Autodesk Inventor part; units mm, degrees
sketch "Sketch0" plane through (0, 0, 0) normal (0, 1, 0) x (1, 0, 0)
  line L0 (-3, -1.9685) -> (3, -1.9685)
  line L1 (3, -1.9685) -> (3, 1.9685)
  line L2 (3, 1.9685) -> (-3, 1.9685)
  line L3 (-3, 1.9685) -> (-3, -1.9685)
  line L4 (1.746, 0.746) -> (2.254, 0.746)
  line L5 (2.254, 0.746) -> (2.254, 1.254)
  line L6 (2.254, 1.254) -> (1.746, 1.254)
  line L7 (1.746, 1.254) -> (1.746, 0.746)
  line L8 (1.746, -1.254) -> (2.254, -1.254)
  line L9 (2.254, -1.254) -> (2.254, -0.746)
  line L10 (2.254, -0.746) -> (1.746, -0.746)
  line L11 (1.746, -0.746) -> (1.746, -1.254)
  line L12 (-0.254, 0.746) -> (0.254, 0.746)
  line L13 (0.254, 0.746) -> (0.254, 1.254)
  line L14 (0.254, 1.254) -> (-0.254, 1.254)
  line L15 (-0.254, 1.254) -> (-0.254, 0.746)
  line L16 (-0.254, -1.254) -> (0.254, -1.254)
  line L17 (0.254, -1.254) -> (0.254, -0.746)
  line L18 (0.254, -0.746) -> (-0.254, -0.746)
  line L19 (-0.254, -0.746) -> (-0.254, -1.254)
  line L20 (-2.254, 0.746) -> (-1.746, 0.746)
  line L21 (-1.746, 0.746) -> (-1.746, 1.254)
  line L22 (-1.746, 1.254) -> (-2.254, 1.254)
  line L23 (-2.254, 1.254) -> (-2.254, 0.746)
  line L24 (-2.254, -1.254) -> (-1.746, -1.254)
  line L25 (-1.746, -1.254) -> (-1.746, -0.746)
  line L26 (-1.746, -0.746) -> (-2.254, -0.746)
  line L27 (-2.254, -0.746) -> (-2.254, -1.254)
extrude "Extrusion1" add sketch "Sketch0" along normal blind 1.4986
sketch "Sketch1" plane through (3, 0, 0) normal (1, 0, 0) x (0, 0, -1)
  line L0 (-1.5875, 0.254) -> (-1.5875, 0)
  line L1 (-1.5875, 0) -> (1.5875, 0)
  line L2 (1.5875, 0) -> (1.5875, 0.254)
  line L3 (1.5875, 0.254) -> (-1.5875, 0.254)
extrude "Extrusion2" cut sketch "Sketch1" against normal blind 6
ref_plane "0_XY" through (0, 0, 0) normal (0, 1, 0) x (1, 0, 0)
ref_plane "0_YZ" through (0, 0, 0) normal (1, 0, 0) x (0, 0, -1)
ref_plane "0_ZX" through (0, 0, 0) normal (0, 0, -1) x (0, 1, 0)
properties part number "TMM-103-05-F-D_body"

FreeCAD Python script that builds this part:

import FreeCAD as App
import Part
import Sketcher
from FreeCAD import Vector
Q = App.Units.Quantity

doc = App.newDocument("Part")
body = doc.addObject("PartDesign::Body", "Body")

# Sketch on XZ plane
sketch1 = body.newObject("Sketcher::SketchObject", "Sketch")
sketch1.AttachmentSupport = (doc.getObject("XZ_Plane"), [""])
sketch1.MapMode = "FlatFace"
sketch1.addGeometry([
    Part.LineSegment(Vector(-3, -2, 0), Vector(-3, 2, 0)),  # 0
    Part.LineSegment(Vector(-3, 2, 0), Vector(3, 2, 0)),  # 1
    Part.LineSegment(Vector(3, 2, 0), Vector(3, -2, 0)),  # 2
    Part.LineSegment(Vector(3, -2, 0), Vector(-3, -2, 0)),  # 3
    Part.LineSegment(Vector(-1.7, 1.3, 0), Vector(-2.3, 1.3, 0)),  # 4
    Part.LineSegment(Vector(-2.3, 1.3, 0), Vector(-2.3, 0.7, 0)),  # 5
    Part.LineSegment(Vector(-2.3, 0.7, 0), Vector(-1.7, 0.7, 0)),  # 6
    Part.LineSegment(Vector(-1.7, 0.7, 0), Vector(-1.7, 1.3, 0)),  # 7
    Part.LineSegment(Vector(0.3, 1.3, 0), Vector(-0.3, 1.3, 0)),  # 8
    Part.LineSegment(Vector(-0.3, 1.3, 0), Vector(-0.3, 0.7, 0)),  # 9
    Part.LineSegment(Vector(-0.3, 0.7, 0), Vector(0.3, 0.7, 0)),  # 10
    Part.LineSegment(Vector(0.3, 0.7, 0), Vector(0.3, 1.3, 0)),  # 11
    Part.LineSegment(Vector(2.3, 1.3, 0), Vector(1.7, 1.3, 0)),  # 12
    Part.LineSegment(Vector(1.7, 1.3, 0), Vector(1.7, 0.7, 0)),  # 13
    Part.LineSegment(Vector(1.7, 0.7, 0), Vector(2.3, 0.7, 0)),  # 14
    Part.LineSegment(Vector(2.3, 0.7, 0), Vector(2.3, 1.3, 0)),  # 15
    Part.LineSegment(Vector(-1.7, -0.7, 0), Vector(-2.3, -0.7, 0)),  # 16
    Part.LineSegment(Vector(-2.3, -0.7, 0), Vector(-2.3, -1.3, 0)),  # 17
    Part.LineSegment(Vector(-2.3, -1.3, 0), Vector(-1.7, -1.3, 0)),  # 18
    Part.LineSegment(Vector(-1.7, -1.3, 0), Vector(-1.7, -0.7, 0)),  # 19
    Part.LineSegment(Vector(0.3, -0.7, 0), Vector(-0.3, -0.7, 0)),  # 20
    Part.LineSegment(Vector(-0.3, -0.7, 0), Vector(-0.3, -1.3, 0)),  # 21
    Part.LineSegment(Vector(-0.3, -1.3, 0), Vector(0.3, -1.3, 0)),  # 22
    Part.LineSegment(Vector(0.3, -1.3, 0), Vector(0.3, -0.7, 0)),  # 23
    Part.LineSegment(Vector(2.3, -0.7, 0), Vector(1.7, -0.7, 0)),  # 24
    Part.LineSegment(Vector(1.7, -0.7, 0), Vector(1.7, -1.3, 0)),  # 25
    Part.LineSegment(Vector(1.7, -1.3, 0), Vector(2.3, -1.3, 0)),  # 26
    Part.LineSegment(Vector(2.3, -1.3, 0), Vector(2.3, -0.7, 0)),  # 27
], False)
sketch1.addConstraint([
    Sketcher.Constraint("Coincident", 0, 2, 1, 1),
    Sketcher.Constraint("Coincident", 1, 2, 2, 1),
    Sketcher.Constraint("Coincident", 2, 2, 3, 1),
    Sketcher.Constraint("Coincident", 3, 2, 0, 1),
    Sketcher.Constraint("Coincident", 4, 2, 5, 1),
    Sketcher.Constraint("Coincident", 5, 2, 6, 1),
    Sketcher.Constraint("Coincident", 6, 2, 7, 1),
    Sketcher.Constraint("Coincident", 7, 2, 4, 1),
    Sketcher.Constraint("Coincident", 8, 2, 9, 1),
    Sketcher.Constraint("Coincident", 9, 2, 10, 1),
    Sketcher.Constraint("Coincident", 10, 2, 11, 1),
    Sketcher.Constraint("Coincident", 11, 2, 8, 1),
    Sketcher.Constraint("Coincident", 12, 2, 13, 1),
    Sketcher.Constraint("Coincident", 13, 2, 14, 1),
    Sketcher.Constraint("Coincident", 14, 2, 15, 1),
    Sketcher.Constraint("Coincident", 15, 2, 12, 1),
    Sketcher.Constraint("Coincident", 16, 2, 17, 1),
    Sketcher.Constraint("Coincident", 17, 2, 18, 1),
    Sketcher.Constraint("Coincident", 18, 2, 19, 1),
    Sketcher.Constraint("Coincident", 19, 2, 16, 1),
    Sketcher.Constraint("Coincident", 20, 2, 21, 1),
    Sketcher.Constraint("Coincident", 21, 2, 22, 1),
    Sketcher.Constraint("Coincident", 22, 2, 23, 1),
    Sketcher.Constraint("Coincident", 23, 2, 20, 1),
    Sketcher.Constraint("Coincident", 24, 2, 25, 1),
    Sketcher.Constraint("Coincident", 25, 2, 26, 1),
    Sketcher.Constraint("Coincident", 26, 2, 27, 1),
    Sketcher.Constraint("Coincident", 27, 2, 24, 1),
    Sketcher.Constraint("Vertical", 0),
    Sketcher.Constraint("Horizontal", 1),
    Sketcher.Constraint("Vertical", 2),
    Sketcher.Constraint("Horizontal", 3),
    Sketcher.Constraint("Horizontal", 4),
    Sketcher.Constraint("Vertical", 5),
    Sketcher.Constraint("Horizontal", 6),
    Sketcher.Constraint("Vertical", 7),
    Sketcher.Constraint("Horizontal", 8),
    Sketcher.Constraint("Vertical", 9),
    Sketcher.Constraint("Horizontal", 10),
    Sketcher.Constraint("Vertical", 11),
    Sketcher.Constraint("Horizontal", 12),
    Sketcher.Constraint("Vertical", 13),
    Sketcher.Constraint("Horizontal", 14),
    Sketcher.Constraint("Vertical", 15),
    Sketcher.Constraint("Horizontal", 16),
    Sketcher.Constraint("Vertical", 17),
    Sketcher.Constraint("Horizontal", 18),
    Sketcher.Constraint("Vertical", 19),
    Sketcher.Constraint("Horizontal", 20),
    Sketcher.Constraint("Vertical", 21),
    Sketcher.Constraint("Horizontal", 22),
    Sketcher.Constraint("Vertical", 23),
    Sketcher.Constraint("Horizontal", 24),
    Sketcher.Constraint("Vertical", 25),
    Sketcher.Constraint("Horizontal", 26),
    Sketcher.Constraint("Vertical", 27),
    Sketcher.Constraint("Symmetric", 0, 2, 2, 2, -1, 1),
    Sketcher.Constraint("Symmetric", 14, 2, 16, 2, -1, 1),
    Sketcher.Constraint("Symmetric", 12, 2, 18, 2, -1, 1),
    Sketcher.Constraint("Symmetric", 10, 2, 20, 2, -1, 1),
    Sketcher.Constraint("Symmetric", 8, 2, 22, 2, -1, 1),
    Sketcher.Constraint("Symmetric", 6, 2, 24, 2, -1, 1),
    Sketcher.Constraint("Symmetric", 4, 2, 26, 2, -1, 1),
    Sketcher.Constraint("Symmetric", 7, 2, 12, 2, -2),
    Sketcher.Constraint("Symmetric", 5, 2, 14, 2, -2),
    Sketcher.Constraint("Horizontal", 7, 2, 8, 2),
    Sketcher.Constraint("Horizontal", 6, 2, 9, 2),
    Sketcher.Constraint("Vertical", 9, 2, 20, 2),
    Sketcher.Constraint("Equal", 6, 8),
    Sketcher.Constraint("Equal", 26, 5),
    Sketcher.Constraint("DistanceX", 4, 2, 4, 1, Q("0.02 in")),
    Sketcher.Constraint("DistanceY", 0, 1, 0, 2, Q("0.155 in")),
    Sketcher.Constraint("DistanceX", 1, 1, 1, 2, Q("6 mm")),
    Sketcher.Constraint("DistanceX", 4, 2, -1, 1, Q("2.254 mm")),
    Sketcher.Constraint("DistanceY", -1, 1, 4, 2, Q("1.254 mm")),
])
pad1 = body.newObject("PartDesign::Pad", "Pad")
pad1.Profile = sketch1
pad1.Length = Q("0.059 in")
pad1.Reversed = True

# Sketch on YZ plane
sketch2 = body.newObject("Sketcher::SketchObject", "Sketch001")
sketch2.AttachmentSupport = (doc.getObject("YZ_Plane"), [""])
sketch2.MapMode = "FlatFace"
sketch2.AttachmentOffset = App.Placement(Vector(0, 0, 0.1181102 * 25.4), App.Rotation())
sketch2.addGeometry([
    Part.LineSegment(Vector(0.25, -1.59, 0), Vector(0.25, 1.59, 0)),
    Part.LineSegment(Vector(0.25, 1.59, 0), Vector(0, 1.59, 0)),
    Part.LineSegment(Vector(0, 1.59, 0), Vector(0, -1.59, 0)),
    Part.LineSegment(Vector(0, -1.59, 0), Vector(0.25, -1.59, 0)),
], False)
sketch2.addConstraint([
    Sketcher.Constraint("Coincident", 0, 2, 1, 1),
    Sketcher.Constraint("Coincident", 1, 2, 2, 1),
    Sketcher.Constraint("Coincident", 2, 2, 3, 1),
    Sketcher.Constraint("Coincident", 3, 2, 0, 1),
    Sketcher.Constraint("Vertical", 0),
    Sketcher.Constraint("Horizontal", 1),
    Sketcher.Constraint("Vertical", 2),
    Sketcher.Constraint("Horizontal", 3),
    Sketcher.Constraint("Symmetric", 1, 2, 2, 2, -1, 1),
    Sketcher.Constraint("DistanceX", 1, 2, 1, 1, Q("0.01 in")),
    Sketcher.Constraint("DistanceY", 0, 1, 0, 2, Q("0.125 in")),
])
pocket1 = body.newObject("PartDesign::Pocket", "Pocket")
pocket1.Profile = sketch2
pocket1.Length = 6

doc.recompute()
